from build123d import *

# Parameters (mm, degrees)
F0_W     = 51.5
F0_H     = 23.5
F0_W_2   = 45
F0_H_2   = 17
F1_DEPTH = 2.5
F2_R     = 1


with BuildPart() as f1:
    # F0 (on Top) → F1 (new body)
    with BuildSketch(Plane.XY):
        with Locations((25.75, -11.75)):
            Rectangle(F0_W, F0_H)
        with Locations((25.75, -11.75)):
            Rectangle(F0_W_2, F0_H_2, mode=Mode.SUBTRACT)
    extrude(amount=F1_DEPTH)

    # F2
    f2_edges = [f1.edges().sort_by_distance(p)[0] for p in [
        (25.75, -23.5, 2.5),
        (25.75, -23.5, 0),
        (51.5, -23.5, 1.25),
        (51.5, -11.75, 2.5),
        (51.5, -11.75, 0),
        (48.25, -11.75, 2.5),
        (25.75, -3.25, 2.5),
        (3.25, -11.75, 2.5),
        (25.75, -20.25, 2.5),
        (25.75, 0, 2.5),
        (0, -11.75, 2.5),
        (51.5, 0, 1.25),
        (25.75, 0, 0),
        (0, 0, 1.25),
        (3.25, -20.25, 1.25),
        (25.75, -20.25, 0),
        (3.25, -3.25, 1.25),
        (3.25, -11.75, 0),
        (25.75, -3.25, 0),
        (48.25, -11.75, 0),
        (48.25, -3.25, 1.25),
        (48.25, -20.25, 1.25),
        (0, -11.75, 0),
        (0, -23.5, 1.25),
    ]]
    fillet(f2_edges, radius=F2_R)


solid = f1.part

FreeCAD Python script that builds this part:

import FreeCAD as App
import Part
import Sketcher
from FreeCAD import Vector
Q = App.Units.Quantity

doc = App.newDocument("Part")
params = doc.addObject("Spreadsheet::Sheet", "Params")
for row, (alias, value) in enumerate([
    ("sketch1_width", "45 mm"),
    ("sketch1_height", "17 mm"),
    ("sketch1_width2", "51.5 mm"),
    ("sketch1_height2", "23.5 mm"),
    ("pad1_length", "2.5 mm"),
    ("fillet_radius", "1 mm"),
], start=1):
    params.set(f"A{row}", alias)
    params.set(f"B{row}", "=" + value)
    params.setAlias(f"B{row}", alias)

body = doc.addObject("PartDesign::Body", "Body")

sketch1 = body.newObject("Sketcher::SketchObject", "Sketch")
sketch1.AttachmentSupport = (doc.getObject("XY_Plane"), [""])
sketch1.MapMode = "FlatFace"
sketch1.addGeometry(Part.LineSegment(Vector(0, 0, 0), Vector(0, -24, 0)), False)
sketch1.addGeometry(Part.LineSegment(Vector(0, -24, 0), Vector(52, -24, 0)), False)
sketch1.addGeometry(Part.LineSegment(Vector(52, -24, 0), Vector(52, 0, 0)), False)
sketch1.addGeometry(Part.LineSegment(Vector(52, 0, 0), Vector(0, 0, 0)), False)
sketch1.addGeometry(Part.LineSegment(Vector(48, -20, 0), Vector(3, -20, 0)), False)
sketch1.addGeometry(Part.LineSegment(Vector(3, -20, 0), Vector(3, -3, 0)), False)
sketch1.addGeometry(Part.LineSegment(Vector(3, -3, 0), Vector(48, -3, 0)), False)
sketch1.addGeometry(Part.LineSegment(Vector(48, -3, 0), Vector(48, -20, 0)), False)
sketch1.addConstraint(Sketcher.Constraint("Coincident", 0, 2, 1, 1))
sketch1.addConstraint(Sketcher.Constraint("Coincident", 1, 2, 2, 1))
sketch1.addConstraint(Sketcher.Constraint("Coincident", 2, 2, 3, 1))
sketch1.addConstraint(Sketcher.Constraint("Coincident", 3, 2, 0, 1))
sketch1.addConstraint(Sketcher.Constraint("Coincident", 4, 2, 5, 1))
sketch1.addConstraint(Sketcher.Constraint("Coincident", 5, 2, 6, 1))
sketch1.addConstraint(Sketcher.Constraint("Coincident", 6, 2, 7, 1))
sketch1.addConstraint(Sketcher.Constraint("Coincident", 7, 2, 4, 1))
sketch1.addConstraint(Sketcher.Constraint("Vertical", 0))
sketch1.addConstraint(Sketcher.Constraint("Horizontal", 1))
sketch1.addConstraint(Sketcher.Constraint("Vertical", 2))
sketch1.addConstraint(Sketcher.Constraint("Horizontal", 3))
sketch1.addConstraint(Sketcher.Constraint("Horizontal", 4))
sketch1.addConstraint(Sketcher.Constraint("Vertical", 5))
sketch1.addConstraint(Sketcher.Constraint("Horizontal", 6))
sketch1.addConstraint(Sketcher.Constraint("Vertical", 7))
sketch1.addConstraint(Sketcher.Constraint("Coincident", 3, 2, -1, 1))
sketch1.addConstraint(Sketcher.Constraint("DistanceX", 4, 2, 4, 1, Q("45 mm")))
sketch1.addConstraint(Sketcher.Constraint("DistanceY", 5, 1, 5, 2, Q("17 mm")))
sketch1.addConstraint(Sketcher.Constraint("DistanceX", 1, 1, 1, 2, Q("51.5 mm")))
sketch1.addConstraint(Sketcher.Constraint("DistanceY", 0, 2, 0, 1, Q("23.5 mm")))
sketch1.addConstraint(Sketcher.Constraint("DistanceX", -1, 1, 4, 2, Q("3.25 mm")))
sketch1.addConstraint(Sketcher.Constraint("DistanceY", 4, 2, -1, 1, Q("20.25 mm")))
sketch1.setExpression("Constraints[17]", "Params.sketch1_width")
sketch1.setExpression("Constraints[18]", "Params.sketch1_height")
sketch1.setExpression("Constraints[19]", "Params.sketch1_width2")
sketch1.setExpression("Constraints[20]", "Params.sketch1_height2")
pad1 = body.newObject("PartDesign::Pad", "Pad")
pad1.Profile = sketch1
pad1.setExpression("Length", "Params.pad1_length")
doc.recompute()

fillet = body.newObject("PartDesign::Fillet", "Fillet")
fillet.Base = (pad1, ["Edge1"])
fillet.UseAllEdges = True
fillet.setExpression("Radius", "Params.fillet_radius")

doc.recompute()
